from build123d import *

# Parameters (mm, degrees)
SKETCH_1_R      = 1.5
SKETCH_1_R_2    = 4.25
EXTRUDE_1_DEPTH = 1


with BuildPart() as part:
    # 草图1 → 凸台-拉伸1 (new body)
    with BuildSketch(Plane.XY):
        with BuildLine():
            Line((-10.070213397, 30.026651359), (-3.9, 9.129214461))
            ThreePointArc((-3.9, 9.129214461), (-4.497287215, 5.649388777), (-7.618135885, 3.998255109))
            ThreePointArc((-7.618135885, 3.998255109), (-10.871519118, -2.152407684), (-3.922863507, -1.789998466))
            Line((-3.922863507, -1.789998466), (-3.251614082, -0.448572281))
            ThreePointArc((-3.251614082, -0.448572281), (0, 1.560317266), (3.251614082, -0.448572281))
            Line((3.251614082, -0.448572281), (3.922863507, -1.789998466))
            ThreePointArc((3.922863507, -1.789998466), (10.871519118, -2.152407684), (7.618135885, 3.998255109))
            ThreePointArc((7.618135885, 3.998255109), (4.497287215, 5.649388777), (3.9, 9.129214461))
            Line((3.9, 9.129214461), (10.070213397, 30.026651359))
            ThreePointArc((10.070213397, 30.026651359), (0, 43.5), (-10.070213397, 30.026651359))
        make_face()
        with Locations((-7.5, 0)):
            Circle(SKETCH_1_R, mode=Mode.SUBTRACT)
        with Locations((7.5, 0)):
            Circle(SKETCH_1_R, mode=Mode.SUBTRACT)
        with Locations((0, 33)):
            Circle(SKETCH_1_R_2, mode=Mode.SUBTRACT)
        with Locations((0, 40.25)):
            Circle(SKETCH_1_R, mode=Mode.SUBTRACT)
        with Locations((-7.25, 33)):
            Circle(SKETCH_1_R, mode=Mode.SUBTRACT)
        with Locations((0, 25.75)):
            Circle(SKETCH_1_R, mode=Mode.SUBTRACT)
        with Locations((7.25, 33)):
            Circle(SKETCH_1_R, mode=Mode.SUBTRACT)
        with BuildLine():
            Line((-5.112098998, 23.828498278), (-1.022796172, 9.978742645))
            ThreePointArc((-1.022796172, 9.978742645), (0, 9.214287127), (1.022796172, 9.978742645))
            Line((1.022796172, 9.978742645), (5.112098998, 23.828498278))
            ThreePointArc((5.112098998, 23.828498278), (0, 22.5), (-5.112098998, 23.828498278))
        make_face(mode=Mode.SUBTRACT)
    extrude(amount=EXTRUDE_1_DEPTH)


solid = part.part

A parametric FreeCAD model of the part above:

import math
import FreeCAD as App
import Part
import Sketcher

V = App.Vector
Q = App.Units.Quantity

doc = App.newDocument("Part")
body = doc.addObject("PartDesign::Body", "Body")

sketch1 = body.newObject("Sketcher::SketchObject", "Sketch")
sketch1.AttachmentSupport = (doc.getObject("XY_Plane"), [""])
sketch1.MapMode = "FlatFace"
sketch1.addGeometry([
    Part.LineSegment(V(-10.1, 30, 0), V(-3.9, 9.1, 0)),
    Part.ArcOfCircle(Part.Circle(V(-7.7, 8, 0), V(0, 0, 1), 4), math.radians(-88), math.radians(16)),
    Part.ArcOfCircle(Part.Circle(V(-7.5, 0, 0), V(0, 0, 1), 4), math.radians(92), math.radians(333)),
    Part.LineSegment(V(-3.9, -1.8, 0), V(-3.3, -0.4, 0)),
    Part.ArcOfCircle(Part.Circle(V(0, -2.1, 0), V(0, 0, 1), 3.6), math.radians(27), math.radians(153)),
    Part.LineSegment(V(3.3, -0.4, 0), V(3.9, -1.8, 0)),
    Part.ArcOfCircle(Part.Circle(V(7.5, 0, 0), V(0, 0, 1), 4), math.radians(-153), math.radians(88)),
    Part.ArcOfCircle(Part.Circle(V(7.7, 8, 0), V(0, 0, 1), 4), math.radians(164), math.radians(268)),
    Part.LineSegment(V(3.9, 9.1, 0), V(10.1, 30, 0)),
    Part.ArcOfCircle(Part.Circle(V(0, 33, 0), V(0, 0, 1), 10.5), math.radians(-16), math.radians(196)),
    Part.Circle(V(-7.5, 0, 0), V(0, 0, 1), 1.5),
    Part.Circle(V(7.5, 0, 0), V(0, 0, 1), 1.5),
    Part.LineSegment(V(-1, 10, 0), V(-5.1, 23.8, 0)),
    Part.ArcOfCircle(Part.Circle(V(0, 33, 0), V(0, 0, 1), 10.5), math.radians(-119), math.radians(-61)),
    Part.LineSegment(V(5.1, 23.8, 0), V(1, 10, 0)),
    Part.ArcOfCircle(Part.Circle(V(0, 10.3, 0), V(0, 0, 1), 1.1), math.radians(-164), math.radians(-16)),
    Part.Circle(V(-7.2, 33, 0), V(0, 0, 1), 1.5),
    Part.Circle(V(0, 25.8, 0), V(0, 0, 1), 1.5),
    Part.Circle(V(0, 33, 0), V(0, 0, 1), 4.2),
    Part.Circle(V(0, 40.2, 0), V(0, 0, 1), 1.5),
    Part.Circle(V(7.2, 33, 0), V(0, 0, 1), 1.5),
], False)
sketch1.addConstraint([
    Sketcher.Constraint("Tangent", 0, 2, 1, 2),
    Sketcher.Constraint("Tangent", 1, 1, 2, 1),
    Sketcher.Constraint("Tangent", 2, 2, 3, 1),
    Sketcher.Constraint("Tangent", 3, 2, 4, 2),
    Sketcher.Constraint("Tangent", 4, 1, 5, 1),
    Sketcher.Constraint("Tangent", 5, 2, 6, 1),
    Sketcher.Constraint("Tangent", 6, 2, 7, 2),
    Sketcher.Constraint("Tangent", 7, 1, 8, 1),
    Sketcher.Constraint("Tangent", 8, 2, 9, 1),
    Sketcher.Constraint("Tangent", 9, 2, 0, 1),
    Sketcher.Constraint("Coincident", 12, 2, 13, 1),
    Sketcher.Constraint("Coincident", 13, 2, 14, 1),
    Sketcher.Constraint("Tangent", 14, 2, 15, 2),
    Sketcher.Constraint("Tangent", 15, 1, 12, 1),
    Sketcher.Constraint("Coincident", 10, 3, 2, 3),
    Sketcher.Constraint("Coincident", 11, 3, 6, 3),
    Sketcher.Constraint("Coincident", 13, 3, 9, 3),
    Sketcher.Constraint("Coincident", 18, 3, 9, 3),
    Sketcher.Constraint("Equal", 1, 2),
    Sketcher.Constraint("Equal", 2, 6),
    Sketcher.Constraint("Equal", 6, 7),
    Sketcher.Constraint("Equal", 10, 11),
    Sketcher.Constraint("Equal", 9, 13),
    Sketcher.Constraint("Equal", 11, 16),
    Sketcher.Constraint("Equal", 16, 17),
    Sketcher.Constraint("Equal", 17, 19),
    Sketcher.Constraint("Equal", 19, 20),
    Sketcher.Constraint("Symmetric", 2, 3, 6, 3, -1, 1),
    Sketcher.Constraint("Symmetric", 1, 3, 7, 3, -2),
    Sketcher.Constraint("Symmetric", 16, 3, 20, 3, -2),
    Sketcher.Constraint("Symmetric", 12, 2, 13, 2, -2),
    Sketcher.Constraint("PointOnObject", 4, 3, -2),
    Sketcher.Constraint("PointOnObject", 15, 3, -2),
    Sketcher.Constraint("PointOnObject", 17, 3, -2),
    Sketcher.Constraint("PointOnObject", 19, 3, -2),
    Sketcher.Constraint("Parallel", 0, 12),
    Sketcher.Constraint("Horizontal", 13, 3, 16, 3),
    Sketcher.Constraint("Diameter", 10, Q("3 mm")),
    Sketcher.Constraint("Radius", 1, Q("4 mm")),
    Sketcher.Constraint("Diameter", 18, Q("8.5 mm")),
    Sketcher.Constraint("Radius", 9, Q("10.5 mm")),
    Sketcher.Constraint("DistanceY", -1, 1, 9, 3, Q("33 mm")),
    Sketcher.Constraint("DistanceX", 2, 3, 6, 3, Q("15 mm")),
    Sketcher.Constraint("Distance", 3, Q("1.5 mm")),
    Sketcher.Constraint("DistanceX", 0, 2, -1, 1, Q("3.9 mm")),
    Sketcher.Constraint("DistanceY", 17, 3, 19, 3, Q("14.5 mm")),
    Sketcher.Constraint("DistanceX", 16, 3, -1, 1, Q("7.25 mm")),
    Sketcher.Constraint("DistanceY", -1, 1, 17, 3, Q("25.75 mm")),
    Sketcher.Constraint("DistanceY", 2, 2, -1, 1, Q("1.789998 mm")),
    Sketcher.Constraint("Radius", 15, Q("1.066448 mm")),
    Sketcher.Constraint("DistanceX", 12, 2, -1, 1, Q("5.112099 mm")),
])
pad1 = body.newObject("PartDesign::Pad", "Pad")
pad1.Profile = sketch1
pad1.Length = 1

doc.recompute()
